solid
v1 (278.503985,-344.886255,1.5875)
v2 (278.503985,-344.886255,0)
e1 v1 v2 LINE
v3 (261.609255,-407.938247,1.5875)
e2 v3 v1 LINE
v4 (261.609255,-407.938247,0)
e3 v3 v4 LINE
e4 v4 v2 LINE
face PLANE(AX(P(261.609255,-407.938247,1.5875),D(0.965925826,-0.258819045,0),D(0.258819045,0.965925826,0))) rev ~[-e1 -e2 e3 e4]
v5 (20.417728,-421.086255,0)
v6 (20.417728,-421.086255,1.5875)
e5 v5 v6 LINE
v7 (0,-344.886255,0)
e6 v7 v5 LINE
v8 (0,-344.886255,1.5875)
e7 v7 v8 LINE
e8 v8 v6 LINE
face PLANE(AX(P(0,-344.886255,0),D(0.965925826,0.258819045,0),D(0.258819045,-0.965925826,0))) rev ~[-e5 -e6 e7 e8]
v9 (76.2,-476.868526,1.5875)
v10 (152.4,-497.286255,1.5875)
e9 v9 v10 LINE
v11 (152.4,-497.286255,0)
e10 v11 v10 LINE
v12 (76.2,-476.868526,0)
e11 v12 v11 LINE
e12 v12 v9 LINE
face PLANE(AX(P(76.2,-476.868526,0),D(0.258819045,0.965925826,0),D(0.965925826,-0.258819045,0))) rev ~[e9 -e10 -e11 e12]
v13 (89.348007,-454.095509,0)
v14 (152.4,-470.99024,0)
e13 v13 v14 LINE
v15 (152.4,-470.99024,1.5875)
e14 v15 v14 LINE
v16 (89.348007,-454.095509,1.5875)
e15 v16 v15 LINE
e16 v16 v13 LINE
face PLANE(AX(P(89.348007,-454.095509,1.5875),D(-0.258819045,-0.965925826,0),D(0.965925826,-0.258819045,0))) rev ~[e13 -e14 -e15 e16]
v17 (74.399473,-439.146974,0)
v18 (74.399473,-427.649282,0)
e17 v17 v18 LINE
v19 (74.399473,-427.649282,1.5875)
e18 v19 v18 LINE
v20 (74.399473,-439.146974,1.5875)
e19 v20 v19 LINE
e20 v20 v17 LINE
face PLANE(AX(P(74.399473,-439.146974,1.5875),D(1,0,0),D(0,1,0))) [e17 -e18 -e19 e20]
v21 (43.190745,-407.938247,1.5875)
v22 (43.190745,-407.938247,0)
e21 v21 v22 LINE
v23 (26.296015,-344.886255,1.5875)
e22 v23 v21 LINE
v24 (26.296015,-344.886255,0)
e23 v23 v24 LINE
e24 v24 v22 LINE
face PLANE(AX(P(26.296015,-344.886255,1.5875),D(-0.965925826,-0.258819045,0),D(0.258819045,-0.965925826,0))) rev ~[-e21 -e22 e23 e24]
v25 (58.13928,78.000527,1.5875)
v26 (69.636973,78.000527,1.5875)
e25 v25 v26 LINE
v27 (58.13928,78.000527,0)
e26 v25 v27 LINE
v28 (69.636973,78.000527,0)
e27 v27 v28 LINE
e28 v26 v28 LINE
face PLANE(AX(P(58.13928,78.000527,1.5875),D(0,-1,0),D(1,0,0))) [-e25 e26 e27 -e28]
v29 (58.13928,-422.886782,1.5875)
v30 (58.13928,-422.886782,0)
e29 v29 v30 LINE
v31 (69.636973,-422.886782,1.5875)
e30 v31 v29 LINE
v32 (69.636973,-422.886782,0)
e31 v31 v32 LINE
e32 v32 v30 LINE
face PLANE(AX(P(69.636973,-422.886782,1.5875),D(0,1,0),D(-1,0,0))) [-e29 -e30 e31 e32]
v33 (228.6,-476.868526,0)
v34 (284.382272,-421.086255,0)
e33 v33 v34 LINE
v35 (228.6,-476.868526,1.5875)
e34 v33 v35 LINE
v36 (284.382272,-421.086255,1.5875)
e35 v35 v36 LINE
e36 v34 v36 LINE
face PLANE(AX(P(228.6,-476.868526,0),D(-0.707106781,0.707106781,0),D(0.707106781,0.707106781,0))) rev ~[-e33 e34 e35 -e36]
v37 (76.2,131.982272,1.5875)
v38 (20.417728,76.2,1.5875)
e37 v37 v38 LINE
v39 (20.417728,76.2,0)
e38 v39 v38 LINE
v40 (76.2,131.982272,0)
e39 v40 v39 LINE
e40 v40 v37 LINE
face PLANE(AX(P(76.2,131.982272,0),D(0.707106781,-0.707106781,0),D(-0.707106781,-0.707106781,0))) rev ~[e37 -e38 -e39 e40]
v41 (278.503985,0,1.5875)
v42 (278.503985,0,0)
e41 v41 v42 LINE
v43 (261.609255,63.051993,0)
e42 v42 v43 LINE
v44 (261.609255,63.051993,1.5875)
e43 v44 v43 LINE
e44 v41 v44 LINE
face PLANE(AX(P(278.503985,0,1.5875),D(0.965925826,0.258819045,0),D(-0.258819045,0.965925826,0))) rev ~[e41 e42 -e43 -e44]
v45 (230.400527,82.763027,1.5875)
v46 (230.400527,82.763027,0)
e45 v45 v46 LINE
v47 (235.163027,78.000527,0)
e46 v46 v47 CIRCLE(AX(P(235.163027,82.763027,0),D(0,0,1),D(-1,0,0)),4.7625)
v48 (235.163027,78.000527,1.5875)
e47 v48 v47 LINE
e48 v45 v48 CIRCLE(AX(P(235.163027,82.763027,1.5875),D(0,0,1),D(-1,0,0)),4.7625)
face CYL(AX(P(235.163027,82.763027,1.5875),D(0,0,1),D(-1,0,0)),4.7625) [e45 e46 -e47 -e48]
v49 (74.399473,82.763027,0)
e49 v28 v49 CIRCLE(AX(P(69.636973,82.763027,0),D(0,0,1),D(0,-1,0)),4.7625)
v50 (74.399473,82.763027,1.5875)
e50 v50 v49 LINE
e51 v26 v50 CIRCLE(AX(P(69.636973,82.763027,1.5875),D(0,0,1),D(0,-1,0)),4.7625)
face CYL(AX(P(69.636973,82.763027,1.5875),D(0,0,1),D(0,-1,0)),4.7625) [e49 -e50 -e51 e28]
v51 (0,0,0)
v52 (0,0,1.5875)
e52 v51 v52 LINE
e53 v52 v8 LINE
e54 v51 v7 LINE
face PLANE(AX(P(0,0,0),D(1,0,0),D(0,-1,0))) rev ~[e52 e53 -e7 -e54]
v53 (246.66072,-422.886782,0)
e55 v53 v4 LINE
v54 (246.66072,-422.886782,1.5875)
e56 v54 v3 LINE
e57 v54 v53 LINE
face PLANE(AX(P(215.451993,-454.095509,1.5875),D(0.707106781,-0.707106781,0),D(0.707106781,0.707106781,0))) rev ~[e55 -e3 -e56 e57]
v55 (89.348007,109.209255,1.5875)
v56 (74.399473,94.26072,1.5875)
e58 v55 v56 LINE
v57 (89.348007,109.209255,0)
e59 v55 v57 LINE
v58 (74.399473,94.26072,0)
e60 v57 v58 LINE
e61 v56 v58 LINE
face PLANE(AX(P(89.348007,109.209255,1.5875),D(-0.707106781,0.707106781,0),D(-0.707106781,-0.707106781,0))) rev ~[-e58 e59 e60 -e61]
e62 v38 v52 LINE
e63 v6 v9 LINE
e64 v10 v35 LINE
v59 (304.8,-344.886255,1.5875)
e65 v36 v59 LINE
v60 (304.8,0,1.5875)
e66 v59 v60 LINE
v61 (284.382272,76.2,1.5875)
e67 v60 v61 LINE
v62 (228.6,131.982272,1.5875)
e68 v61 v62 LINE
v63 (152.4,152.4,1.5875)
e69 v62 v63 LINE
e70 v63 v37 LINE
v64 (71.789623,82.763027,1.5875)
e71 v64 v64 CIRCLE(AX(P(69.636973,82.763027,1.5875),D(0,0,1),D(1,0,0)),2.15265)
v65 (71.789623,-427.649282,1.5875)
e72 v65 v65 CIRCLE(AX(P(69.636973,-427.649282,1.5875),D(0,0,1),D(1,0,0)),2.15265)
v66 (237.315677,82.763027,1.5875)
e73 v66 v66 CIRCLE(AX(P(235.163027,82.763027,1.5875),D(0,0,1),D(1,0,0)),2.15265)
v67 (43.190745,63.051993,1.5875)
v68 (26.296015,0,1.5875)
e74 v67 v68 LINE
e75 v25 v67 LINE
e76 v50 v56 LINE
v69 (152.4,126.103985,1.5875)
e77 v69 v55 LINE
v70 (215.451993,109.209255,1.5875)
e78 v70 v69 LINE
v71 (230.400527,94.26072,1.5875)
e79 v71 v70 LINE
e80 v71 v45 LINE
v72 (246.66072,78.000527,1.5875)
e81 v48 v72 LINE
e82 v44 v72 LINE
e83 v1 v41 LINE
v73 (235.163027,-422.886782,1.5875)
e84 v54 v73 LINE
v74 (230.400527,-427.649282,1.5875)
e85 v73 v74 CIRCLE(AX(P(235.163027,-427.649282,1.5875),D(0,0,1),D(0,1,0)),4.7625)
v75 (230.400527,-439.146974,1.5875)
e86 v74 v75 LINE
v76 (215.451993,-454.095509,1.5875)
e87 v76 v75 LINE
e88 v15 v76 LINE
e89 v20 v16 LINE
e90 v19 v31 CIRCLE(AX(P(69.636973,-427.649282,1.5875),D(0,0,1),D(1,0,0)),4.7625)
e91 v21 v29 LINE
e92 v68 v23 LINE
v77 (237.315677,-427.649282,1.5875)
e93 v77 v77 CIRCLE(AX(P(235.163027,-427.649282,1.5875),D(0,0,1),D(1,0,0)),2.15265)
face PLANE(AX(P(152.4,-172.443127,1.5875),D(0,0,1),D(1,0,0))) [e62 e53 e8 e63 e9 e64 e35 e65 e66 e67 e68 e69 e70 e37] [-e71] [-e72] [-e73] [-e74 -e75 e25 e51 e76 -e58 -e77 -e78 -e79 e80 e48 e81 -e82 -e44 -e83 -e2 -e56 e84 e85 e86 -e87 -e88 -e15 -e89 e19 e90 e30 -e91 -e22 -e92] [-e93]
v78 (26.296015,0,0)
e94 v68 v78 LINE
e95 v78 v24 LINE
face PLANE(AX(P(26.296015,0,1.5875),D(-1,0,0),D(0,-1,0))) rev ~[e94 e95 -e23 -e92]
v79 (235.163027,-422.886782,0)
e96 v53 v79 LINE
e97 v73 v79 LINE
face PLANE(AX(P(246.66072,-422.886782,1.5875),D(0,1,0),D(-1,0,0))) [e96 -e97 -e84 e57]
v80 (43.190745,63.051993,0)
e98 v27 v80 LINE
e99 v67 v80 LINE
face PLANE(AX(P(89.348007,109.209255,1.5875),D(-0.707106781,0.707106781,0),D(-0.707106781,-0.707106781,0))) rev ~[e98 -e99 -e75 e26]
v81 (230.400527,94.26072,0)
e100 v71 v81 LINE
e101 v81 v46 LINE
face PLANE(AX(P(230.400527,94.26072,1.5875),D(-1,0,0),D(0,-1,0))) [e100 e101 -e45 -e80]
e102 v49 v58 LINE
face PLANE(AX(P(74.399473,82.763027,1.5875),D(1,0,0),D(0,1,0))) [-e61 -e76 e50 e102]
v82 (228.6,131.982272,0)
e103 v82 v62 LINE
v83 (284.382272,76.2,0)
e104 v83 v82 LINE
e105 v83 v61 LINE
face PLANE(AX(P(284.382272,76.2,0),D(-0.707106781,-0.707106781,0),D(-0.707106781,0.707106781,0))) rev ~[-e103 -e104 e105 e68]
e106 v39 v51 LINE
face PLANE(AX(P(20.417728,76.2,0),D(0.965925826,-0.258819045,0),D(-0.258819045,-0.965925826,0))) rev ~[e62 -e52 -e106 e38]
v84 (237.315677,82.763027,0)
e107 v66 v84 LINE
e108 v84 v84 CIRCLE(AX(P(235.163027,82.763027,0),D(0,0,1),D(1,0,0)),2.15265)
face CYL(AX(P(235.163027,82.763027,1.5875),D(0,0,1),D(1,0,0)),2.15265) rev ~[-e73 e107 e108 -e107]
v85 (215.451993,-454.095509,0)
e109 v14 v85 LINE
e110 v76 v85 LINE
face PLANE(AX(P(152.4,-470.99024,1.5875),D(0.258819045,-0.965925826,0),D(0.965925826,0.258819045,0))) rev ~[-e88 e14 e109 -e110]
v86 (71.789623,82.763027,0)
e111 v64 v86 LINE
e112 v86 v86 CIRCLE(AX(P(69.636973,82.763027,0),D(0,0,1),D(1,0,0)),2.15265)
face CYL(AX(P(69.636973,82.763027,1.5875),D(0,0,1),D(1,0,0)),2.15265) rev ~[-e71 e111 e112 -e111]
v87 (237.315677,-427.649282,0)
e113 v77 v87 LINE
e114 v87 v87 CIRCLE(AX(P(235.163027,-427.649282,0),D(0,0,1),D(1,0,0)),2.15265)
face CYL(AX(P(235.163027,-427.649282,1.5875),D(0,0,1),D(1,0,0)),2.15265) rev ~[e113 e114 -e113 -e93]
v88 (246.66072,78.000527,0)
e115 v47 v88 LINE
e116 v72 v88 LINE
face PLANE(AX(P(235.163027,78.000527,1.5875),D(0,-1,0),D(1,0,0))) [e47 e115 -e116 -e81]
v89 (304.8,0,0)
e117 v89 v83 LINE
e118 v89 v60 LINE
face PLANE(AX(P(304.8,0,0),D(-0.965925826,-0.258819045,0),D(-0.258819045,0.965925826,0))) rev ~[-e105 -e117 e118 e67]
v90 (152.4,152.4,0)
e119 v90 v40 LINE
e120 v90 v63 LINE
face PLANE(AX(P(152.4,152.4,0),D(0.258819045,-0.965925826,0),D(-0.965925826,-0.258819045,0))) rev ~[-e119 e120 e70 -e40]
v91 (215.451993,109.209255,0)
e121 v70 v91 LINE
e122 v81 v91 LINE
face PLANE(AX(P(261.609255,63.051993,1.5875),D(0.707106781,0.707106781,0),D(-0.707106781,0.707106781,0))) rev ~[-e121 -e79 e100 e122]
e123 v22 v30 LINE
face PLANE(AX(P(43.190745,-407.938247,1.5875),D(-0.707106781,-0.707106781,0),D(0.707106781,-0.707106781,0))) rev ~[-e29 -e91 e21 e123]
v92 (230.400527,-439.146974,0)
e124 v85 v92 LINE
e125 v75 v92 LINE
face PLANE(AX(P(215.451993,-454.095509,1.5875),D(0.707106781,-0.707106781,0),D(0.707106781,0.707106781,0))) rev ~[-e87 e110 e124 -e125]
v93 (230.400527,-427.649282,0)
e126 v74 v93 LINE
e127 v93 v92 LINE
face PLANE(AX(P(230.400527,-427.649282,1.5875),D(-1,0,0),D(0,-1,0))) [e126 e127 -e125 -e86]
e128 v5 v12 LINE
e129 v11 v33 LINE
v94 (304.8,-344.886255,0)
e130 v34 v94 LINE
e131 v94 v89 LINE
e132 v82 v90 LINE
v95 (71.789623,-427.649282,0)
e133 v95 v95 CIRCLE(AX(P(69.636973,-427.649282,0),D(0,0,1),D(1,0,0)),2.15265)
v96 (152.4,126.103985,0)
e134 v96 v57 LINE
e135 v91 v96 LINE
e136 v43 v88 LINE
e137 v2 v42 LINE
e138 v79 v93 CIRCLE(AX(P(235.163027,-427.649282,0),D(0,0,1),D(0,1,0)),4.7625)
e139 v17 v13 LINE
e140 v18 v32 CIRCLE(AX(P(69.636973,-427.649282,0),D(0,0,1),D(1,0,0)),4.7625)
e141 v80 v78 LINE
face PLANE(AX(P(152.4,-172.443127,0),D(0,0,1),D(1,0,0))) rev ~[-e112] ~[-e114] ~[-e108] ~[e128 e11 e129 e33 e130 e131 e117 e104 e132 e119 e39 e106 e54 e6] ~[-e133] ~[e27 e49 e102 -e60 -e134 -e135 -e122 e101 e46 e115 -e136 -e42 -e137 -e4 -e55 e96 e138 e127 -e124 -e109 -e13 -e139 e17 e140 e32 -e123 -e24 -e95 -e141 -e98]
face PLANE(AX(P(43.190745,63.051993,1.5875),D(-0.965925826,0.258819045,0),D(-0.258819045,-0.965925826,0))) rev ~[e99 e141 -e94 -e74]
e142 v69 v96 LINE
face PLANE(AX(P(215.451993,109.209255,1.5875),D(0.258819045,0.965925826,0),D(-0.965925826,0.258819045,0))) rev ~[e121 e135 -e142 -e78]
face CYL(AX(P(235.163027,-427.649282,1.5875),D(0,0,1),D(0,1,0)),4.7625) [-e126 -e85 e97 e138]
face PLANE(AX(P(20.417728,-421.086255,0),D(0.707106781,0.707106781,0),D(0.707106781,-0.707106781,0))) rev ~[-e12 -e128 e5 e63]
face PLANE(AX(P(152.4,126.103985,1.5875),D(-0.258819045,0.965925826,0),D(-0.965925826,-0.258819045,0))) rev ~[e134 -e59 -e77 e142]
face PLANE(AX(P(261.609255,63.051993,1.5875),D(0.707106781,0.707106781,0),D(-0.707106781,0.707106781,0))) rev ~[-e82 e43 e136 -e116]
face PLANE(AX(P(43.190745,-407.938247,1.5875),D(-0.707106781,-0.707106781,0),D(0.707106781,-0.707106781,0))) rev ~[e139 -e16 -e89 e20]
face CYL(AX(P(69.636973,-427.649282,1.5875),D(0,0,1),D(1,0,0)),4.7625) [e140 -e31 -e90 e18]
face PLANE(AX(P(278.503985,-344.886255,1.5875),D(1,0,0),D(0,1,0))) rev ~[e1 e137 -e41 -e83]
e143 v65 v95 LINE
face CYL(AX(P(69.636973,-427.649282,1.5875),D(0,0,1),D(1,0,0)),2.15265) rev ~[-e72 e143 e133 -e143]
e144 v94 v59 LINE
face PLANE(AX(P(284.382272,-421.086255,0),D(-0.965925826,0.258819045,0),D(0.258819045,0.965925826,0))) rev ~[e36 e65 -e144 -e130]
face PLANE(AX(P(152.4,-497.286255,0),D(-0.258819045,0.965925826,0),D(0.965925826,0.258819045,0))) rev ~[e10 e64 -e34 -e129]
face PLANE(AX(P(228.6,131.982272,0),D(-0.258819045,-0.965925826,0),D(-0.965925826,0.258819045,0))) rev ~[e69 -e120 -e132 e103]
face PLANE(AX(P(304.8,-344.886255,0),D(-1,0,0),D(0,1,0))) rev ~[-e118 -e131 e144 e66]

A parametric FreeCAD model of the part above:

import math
import FreeCAD as App
import Part
import Sketcher
Q = App.Units.Quantity


def add_polygon(sketch, points):
    """Adds a closed chain of lines whose ends are joined by coincident constraints."""
    first, n = sketch.GeometryCount, len(points)
    for a, b in zip(points, points[1:] + points[:1]):
        sketch.addGeometry(Part.LineSegment(App.Vector(*a, 0), App.Vector(*b, 0)), False)
    for i in range(n):
        sketch.addConstraint(Sketcher.Constraint("Coincident", first + i, 2, first + (i + 1) % n, 1))

doc = App.newDocument("Part")
body = doc.addObject("PartDesign::Body", "Body")

sketch1 = body.newObject("Sketcher::SketchObject", "Sketch")
sketch1.AttachmentSupport = (doc.getObject("XY_Plane"), [""])
sketch1.MapMode = "FlatFace"
add_polygon(sketch1, [(305, -345), (305, 0), (284, 76), (229, 132), (152, 152), (76, 132), (20, 76), (0, 0), (0, -345), (20, -421), (76, -477), (152, -497), (229, -477), (284, -421)])
sketch1.addConstraint(Sketcher.Constraint("Vertical", 0))
sketch1.addConstraint(Sketcher.Constraint("Vertical", 7))
sketch1.addConstraint(Sketcher.Constraint("Coincident", 6, 2, -1, 1))
sketch1.addConstraint(Sketcher.Constraint("PointOnObject", 0, 2, -1))
sketch1.addConstraint(Sketcher.Constraint("Perpendicular", 1, 4))
sketch1.addConstraint(Sketcher.Constraint("Perpendicular", 2, 5))
sketch1.addConstraint(Sketcher.Constraint("Perpendicular", 3, 6))
sketch1.addConstraint(Sketcher.Constraint("Perpendicular", 4, 8))
sketch1.addConstraint(Sketcher.Constraint("Perpendicular", 5, 9))
sketch1.addConstraint(Sketcher.Constraint("Perpendicular", 6, 10))
sketch1.addConstraint(Sketcher.Constraint("Perpendicular", 8, 11))
sketch1.addConstraint(Sketcher.Constraint("Perpendicular", 9, 12))
sketch1.addConstraint(Sketcher.Constraint("Perpendicular", 10, 13))
sketch1.addConstraint(Sketcher.Constraint("Horizontal", 2, 2, 4, 2))
sketch1.addConstraint(Sketcher.Constraint("Horizontal", 1, 2, 5, 2))
sketch1.addConstraint(Sketcher.Constraint("Horizontal", 9, 2, 11, 2))
sketch1.addConstraint(Sketcher.Constraint("Horizontal", 8, 2, 12, 2))
sketch1.addConstraint(Sketcher.Constraint("Horizontal", 7, 2, 13, 2))
sketch1.addConstraint(Sketcher.Constraint("Vertical", 5, 2, 8, 2))
sketch1.addConstraint(Sketcher.Constraint("Vertical", 4, 2, 9, 2))
sketch1.addConstraint(Sketcher.Constraint("Vertical", 3, 2, 10, 2))
sketch1.addConstraint(Sketcher.Constraint("Vertical", 2, 2, 11, 2))
sketch1.addConstraint(Sketcher.Constraint("Equal", 1, 2))
sketch1.addConstraint(Sketcher.Constraint("Equal", 2, 3))
sketch1.addConstraint(Sketcher.Constraint("DistanceX", -1, 1, 0, 2, Q("12 in")))
sketch1.addConstraint(Sketcher.Constraint("DistanceY", -1, 1, 1, 2, Q("3 in")))
sketch1.addConstraint(Sketcher.Constraint("DistanceY", 0, 1, 0, 2, Q("344.886255 mm")))
pad1 = body.newObject("PartDesign::Pad", "Pad")
pad1.Profile = sketch1
pad1.Length = Q("0.0625 in")

sketch2 = body.newObject("Sketcher::SketchObject", "Sketch001")
sketch2.AttachmentSupport = (doc.getObject("XY_Plane"), [""])
sketch2.MapMode = "FlatFace"
sketch2.AttachmentOffset = App.Placement(App.Vector(0, 0, 0.0625 * 25.4), App.Rotation())
add_polygon(sketch2, [(279, -345), (279, 0), (262, 63), (215, 109), (152, 126), (89, 109), (43, 63), (26, 0), (26, -345), (43, -408), (89, -454), (152, -471), (215, -454), (262, -408)])
sketch2.addConstraint(Sketcher.Constraint("Vertical", 0))
sketch2.addConstraint(Sketcher.Constraint("Vertical", 7))
sketch2.addConstraint(Sketcher.Constraint("PointOnObject", 0, 2, -1))
sketch2.addConstraint(Sketcher.Constraint("PointOnObject", 6, 2, -1))
sketch2.addConstraint(Sketcher.Constraint("Perpendicular", 1, 4))
sketch2.addConstraint(Sketcher.Constraint("Perpendicular", 2, 5))
sketch2.addConstraint(Sketcher.Constraint("Perpendicular", 3, 6))
sketch2.addConstraint(Sketcher.Constraint("Perpendicular", 4, 8))
sketch2.addConstraint(Sketcher.Constraint("Perpendicular", 5, 9))
sketch2.addConstraint(Sketcher.Constraint("Perpendicular", 6, 10))
sketch2.addConstraint(Sketcher.Constraint("Perpendicular", 8, 11))
sketch2.addConstraint(Sketcher.Constraint("Perpendicular", 9, 12))
sketch2.addConstraint(Sketcher.Constraint("Perpendicular", 10, 13))
sketch2.addConstraint(Sketcher.Constraint("Horizontal", 2, 2, 4, 2))
sketch2.addConstraint(Sketcher.Constraint("Horizontal", 1, 2, 5, 2))
sketch2.addConstraint(Sketcher.Constraint("Horizontal", 9, 2, 11, 2))
sketch2.addConstraint(Sketcher.Constraint("Horizontal", 8, 2, 12, 2))
sketch2.addConstraint(Sketcher.Constraint("Horizontal", 7, 2, 13, 2))
sketch2.addConstraint(Sketcher.Constraint("Vertical", 5, 2, 8, 2))
sketch2.addConstraint(Sketcher.Constraint("Vertical", 4, 2, 9, 2))
sketch2.addConstraint(Sketcher.Constraint("Vertical", 3, 2, 10, 2))
sketch2.addConstraint(Sketcher.Constraint("Vertical", 2, 2, 11, 2))
sketch2.addConstraint(Sketcher.Constraint("Equal", 1, 2))
sketch2.addConstraint(Sketcher.Constraint("Equal", 2, 3))
sketch2.addConstraint(Sketcher.Constraint("DistanceX", -1, 1, 3, 2, Q("6 in")))
sketch2.addConstraint(Sketcher.Constraint("Angle", 1, Q("105 deg")))
sketch2.addConstraint(Sketcher.Constraint("DistanceY", 9, 2, 5, 2, Q("517.147502 mm")))
sketch2.addConstraint(Sketcher.Constraint("DistanceY", 0, 1, 0, 2, Q("344.886255 mm")))
pocket1 = body.newObject("PartDesign::Pocket", "Pocket")
pocket1.Profile = sketch2
pocket1.Type = "ThroughAll"

sketch3 = body.newObject("Sketcher::SketchObject", "Sketch002")
sketch3.AttachmentSupport = (doc.getObject("XY_Plane"), [""])
sketch3.MapMode = "FlatFace"
sketch3.AttachmentOffset = App.Placement(App.Vector(0, 0, 0.0625 * 25.4), App.Rotation())
sketch3.addGeometry(Part.LineSegment(App.Vector(246.7, 78, 0), App.Vector(230.4, 94.3, 0)), False)
sketch3.addGeometry(Part.LineSegment(App.Vector(230.4, 94.3, 0), App.Vector(230.4, 82.8, 0)), False)
sketch3.addGeometry(Part.ArcOfCircle(Part.Circle(App.Vector(235.2, 82.8, 0), App.Vector(0, 0, 1), 4.8), math.radians(180), math.radians(270)), False)
sketch3.addGeometry(Part.LineSegment(App.Vector(235.2, 78, 0), App.Vector(246.7, 78, 0)), False)
sketch3.addGeometry(Part.Circle(App.Vector(235.2, 82.8, 0), App.Vector(0, 0, 1), 2.2), False)
sketch3.addGeometry(Part.ArcOfCircle(Part.Circle(App.Vector(69.6, 82.8, 0), App.Vector(0, 0, 1), 4.8), math.radians(-90), math.radians(0)), False)
sketch3.addGeometry(Part.LineSegment(App.Vector(74.4, 82.8, 0), App.Vector(74.4, 94.3, 0)), False)
sketch3.addGeometry(Part.LineSegment(App.Vector(74.4, 94.3, 0), App.Vector(58.1, 78, 0)), False)
sketch3.addGeometry(Part.LineSegment(App.Vector(58.1, 78, 0), App.Vector(69.6, 78, 0)), False)
sketch3.addGeometry(Part.Circle(App.Vector(69.6, 82.8, 0), App.Vector(0, 0, 1), 2.2), False)
sketch3.addGeometry(Part.LineSegment(App.Vector(69.6, -422.9, 0), App.Vector(58.1, -422.9, 0)), False)
sketch3.addGeometry(Part.LineSegment(App.Vector(58.1, -422.9, 0), App.Vector(74.4, -439.1, 0)), False)
sketch3.addGeometry(Part.LineSegment(App.Vector(74.4, -439.1, 0), App.Vector(74.4, -427.6, 0)), False)
sketch3.addGeometry(Part.ArcOfCircle(Part.Circle(App.Vector(69.6, -427.6, 0), App.Vector(0, 0, 1), 4.8), math.radians(0), math.radians(90)), False)
sketch3.addGeometry(Part.Circle(App.Vector(69.6, -427.6, 0), App.Vector(0, 0, 1), 2.2), False)
sketch3.addGeometry(Part.LineSegment(App.Vector(230.4, -439.1, 0), App.Vector(246.7, -422.9, 0)), False)
sketch3.addGeometry(Part.LineSegment(App.Vector(246.7, -422.9, 0), App.Vector(235.2, -422.9, 0)), False)
sketch3.addGeometry(Part.ArcOfCircle(Part.Circle(App.Vector(235.2, -427.6, 0), App.Vector(0, 0, 1), 4.8), math.radians(90), math.radians(180)), False)
sketch3.addGeometry(Part.LineSegment(App.Vector(230.4, -427.6, 0), App.Vector(230.4, -439.1, 0)), False)
sketch3.addGeometry(Part.Circle(App.Vector(235.2, -427.6, 0), App.Vector(0, 0, 1), 2.2), False)
sketch3.addConstraint(Sketcher.Constraint("Coincident", 0, 2, 1, 1))
sketch3.addConstraint(Sketcher.Constraint("Tangent", 1, 2, 2, 1))
sketch3.addConstraint(Sketcher.Constraint("Tangent", 2, 2, 3, 1))
sketch3.addConstraint(Sketcher.Constraint("Coincident", 3, 2, 0, 1))
sketch3.addConstraint(Sketcher.Constraint("Tangent", 5, 2, 6, 1))
sketch3.addConstraint(Sketcher.Constraint("Coincident", 6, 2, 7, 1))
sketch3.addConstraint(Sketcher.Constraint("Coincident", 7, 2, 8, 1))
sketch3.addConstraint(Sketcher.Constraint("Tangent", 8, 2, 5, 1))
sketch3.addConstraint(Sketcher.Constraint("Coincident", 10, 2, 11, 1))
sketch3.addConstraint(Sketcher.Constraint("Coincident", 11, 2, 12, 1))
sketch3.addConstraint(Sketcher.Constraint("Tangent", 12, 2, 13, 1))
sketch3.addConstraint(Sketcher.Constraint("Tangent", 13, 2, 10, 1))
sketch3.addConstraint(Sketcher.Constraint("Coincident", 15, 2, 16, 1))
sketch3.addConstraint(Sketcher.Constraint("Tangent", 16, 2, 17, 1))
sketch3.addConstraint(Sketcher.Constraint("Tangent", 17, 2, 18, 1))
sketch3.addConstraint(Sketcher.Constraint("Coincident", 18, 2, 15, 1))
sketch3.addConstraint(Sketcher.Constraint("Vertical", 1))
sketch3.addConstraint(Sketcher.Constraint("Horizontal", 3))
sketch3.addConstraint(Sketcher.Constraint("Vertical", 6))
sketch3.addConstraint(Sketcher.Constraint("Horizontal", 8))
sketch3.addConstraint(Sketcher.Constraint("Horizontal", 10))
sketch3.addConstraint(Sketcher.Constraint("Vertical", 12))
sketch3.addConstraint(Sketcher.Constraint("Horizontal", 16))
sketch3.addConstraint(Sketcher.Constraint("Vertical", 18))
sketch3.addConstraint(Sketcher.Constraint("Coincident", 4, 3, 2, 3))
sketch3.addConstraint(Sketcher.Constraint("Coincident", 9, 3, 5, 3))
sketch3.addConstraint(Sketcher.Constraint("Coincident", 14, 3, 13, 3))
sketch3.addConstraint(Sketcher.Constraint("Coincident", 19, 3, 17, 3))
sketch3.addConstraint(Sketcher.Constraint("Equal", 2, 5))
sketch3.addConstraint(Sketcher.Constraint("Equal", 4, 9))
sketch3.addConstraint(Sketcher.Constraint("Equal", 5, 13))
sketch3.addConstraint(Sketcher.Constraint("Equal", 9, 14))
sketch3.addConstraint(Sketcher.Constraint("Equal", 13, 17))
sketch3.addConstraint(Sketcher.Constraint("Equal", 14, 19))
sketch3.addConstraint(Sketcher.Constraint("Perpendicular", 0, 7))
sketch3.addConstraint(Sketcher.Constraint("Perpendicular", 7, 11))
sketch3.addConstraint(Sketcher.Constraint("Perpendicular", 11, 15))
sketch3.addConstraint(Sketcher.Constraint("Horizontal", 4, 3, 5, 3))
sketch3.addConstraint(Sketcher.Constraint("Horizontal", 14, 3, 17, 3))
sketch3.addConstraint(Sketcher.Constraint("Horizontal", 0, 2, 6, 2))
sketch3.addConstraint(Sketcher.Constraint("Horizontal", 11, 2, 18, 2))
sketch3.addConstraint(Sketcher.Constraint("Vertical", 9, 3, 13, 3))
sketch3.addConstraint(Sketcher.Constraint("Vertical", 4, 3, 17, 3))
sketch3.addConstraint(Sketcher.Constraint("Vertical", 7, 2, 10, 2))
sketch3.addConstraint(Sketcher.Constraint("Vertical", 3, 2, 15, 2))
sketch3.addConstraint(Sketcher.Constraint("Radius", 2, Q("0.1875 in")))
sketch3.addConstraint(Sketcher.Constraint("Diameter", 4, Q("0.1695 in")))
sketch3.addConstraint(Sketcher.Constraint("DistanceY", 17, 3, 0, 2, Q("521.910002 mm")))
sketch3.addConstraint(Sketcher.Constraint("DistanceX", 3, 1, 3, 2, Q("11.497692 mm")))
sketch3.addConstraint(Sketcher.Constraint("DistanceY", -1, 1, 0, 2, Q("94.26072 mm")))
sketch3.addConstraint(Sketcher.Constraint("DistanceX", -1, 1, 3, 2, Q("246.66072 mm")))
sketch3.addConstraint(Sketcher.Constraint("DistanceX", -1, 1, 7, 2, Q("58.13928 mm")))
pad2 = body.newObject("PartDesign::Pad", "Pad001")
pad2.Profile = sketch3
pad2.Length = Q("0.0625 in")
pad2.Reversed = True

doc.recompute()
